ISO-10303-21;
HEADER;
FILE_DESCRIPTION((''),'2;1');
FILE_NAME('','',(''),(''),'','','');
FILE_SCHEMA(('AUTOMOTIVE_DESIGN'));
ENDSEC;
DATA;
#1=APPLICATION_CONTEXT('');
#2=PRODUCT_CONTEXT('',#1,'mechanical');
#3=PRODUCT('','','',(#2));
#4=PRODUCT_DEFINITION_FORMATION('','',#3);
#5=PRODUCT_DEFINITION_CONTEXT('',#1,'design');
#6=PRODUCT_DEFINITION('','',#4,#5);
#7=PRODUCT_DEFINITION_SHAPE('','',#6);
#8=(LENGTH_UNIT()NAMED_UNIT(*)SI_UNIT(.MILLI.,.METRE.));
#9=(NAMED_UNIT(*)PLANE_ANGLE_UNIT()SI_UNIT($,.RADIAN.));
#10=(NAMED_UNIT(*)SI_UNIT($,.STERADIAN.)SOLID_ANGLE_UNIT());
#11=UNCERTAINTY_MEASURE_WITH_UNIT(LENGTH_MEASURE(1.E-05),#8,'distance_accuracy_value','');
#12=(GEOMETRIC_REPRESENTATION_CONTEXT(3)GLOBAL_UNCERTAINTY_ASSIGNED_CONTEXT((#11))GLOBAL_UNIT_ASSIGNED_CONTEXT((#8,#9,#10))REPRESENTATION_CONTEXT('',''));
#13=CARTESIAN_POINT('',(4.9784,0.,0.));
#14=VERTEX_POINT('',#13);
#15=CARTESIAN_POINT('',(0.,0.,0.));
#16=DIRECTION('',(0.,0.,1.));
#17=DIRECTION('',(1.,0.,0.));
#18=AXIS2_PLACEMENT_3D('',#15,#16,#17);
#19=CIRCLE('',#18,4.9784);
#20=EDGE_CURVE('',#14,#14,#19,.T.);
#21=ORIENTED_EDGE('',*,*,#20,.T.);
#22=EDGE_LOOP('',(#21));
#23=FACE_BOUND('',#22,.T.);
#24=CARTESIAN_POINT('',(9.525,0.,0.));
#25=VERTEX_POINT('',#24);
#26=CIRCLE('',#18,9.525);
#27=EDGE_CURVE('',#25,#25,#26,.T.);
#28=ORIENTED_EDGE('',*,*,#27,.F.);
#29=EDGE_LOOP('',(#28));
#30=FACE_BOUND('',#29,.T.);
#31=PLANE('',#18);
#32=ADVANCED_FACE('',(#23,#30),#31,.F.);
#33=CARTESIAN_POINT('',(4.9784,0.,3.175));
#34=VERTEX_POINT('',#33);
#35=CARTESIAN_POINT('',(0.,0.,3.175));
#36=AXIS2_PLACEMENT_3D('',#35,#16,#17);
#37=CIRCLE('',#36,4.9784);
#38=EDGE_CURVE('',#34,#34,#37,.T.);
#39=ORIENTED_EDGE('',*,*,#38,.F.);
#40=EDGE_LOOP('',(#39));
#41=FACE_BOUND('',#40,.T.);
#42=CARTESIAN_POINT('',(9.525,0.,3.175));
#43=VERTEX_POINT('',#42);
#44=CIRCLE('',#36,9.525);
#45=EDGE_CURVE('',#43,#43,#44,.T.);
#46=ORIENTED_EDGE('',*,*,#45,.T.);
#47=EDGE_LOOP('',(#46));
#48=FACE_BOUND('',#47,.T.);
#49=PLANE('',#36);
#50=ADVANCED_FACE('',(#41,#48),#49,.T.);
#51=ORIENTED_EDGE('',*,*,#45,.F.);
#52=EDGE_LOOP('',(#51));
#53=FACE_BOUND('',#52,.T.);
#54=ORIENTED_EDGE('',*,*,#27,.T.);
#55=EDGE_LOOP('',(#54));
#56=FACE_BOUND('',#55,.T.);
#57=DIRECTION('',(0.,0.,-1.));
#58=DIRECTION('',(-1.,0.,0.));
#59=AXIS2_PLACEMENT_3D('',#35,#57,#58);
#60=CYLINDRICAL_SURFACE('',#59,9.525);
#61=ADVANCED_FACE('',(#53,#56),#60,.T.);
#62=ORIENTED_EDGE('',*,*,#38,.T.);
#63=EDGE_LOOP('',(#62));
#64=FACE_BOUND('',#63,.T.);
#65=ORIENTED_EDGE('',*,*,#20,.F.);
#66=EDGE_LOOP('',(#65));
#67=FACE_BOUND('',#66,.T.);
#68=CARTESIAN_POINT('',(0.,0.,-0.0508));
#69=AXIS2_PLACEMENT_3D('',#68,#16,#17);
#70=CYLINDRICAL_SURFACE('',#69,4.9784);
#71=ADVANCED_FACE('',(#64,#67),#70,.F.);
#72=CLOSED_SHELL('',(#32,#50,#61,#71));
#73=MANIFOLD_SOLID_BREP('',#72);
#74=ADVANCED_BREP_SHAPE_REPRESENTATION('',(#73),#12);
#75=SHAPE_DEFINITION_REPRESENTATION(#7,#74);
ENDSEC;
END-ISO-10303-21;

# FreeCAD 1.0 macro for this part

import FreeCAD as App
import Part
import Sketcher

V = App.Vector
Q = App.Units.Quantity

doc = App.newDocument("Part")
body = doc.addObject("PartDesign::Body", "Body")

# Sketch on XY plane
sketch1 = body.newObject("Sketcher::SketchObject", "Sketch")
sketch1.AttachmentSupport = (doc.getObject("XY_Plane"), [""])
sketch1.MapMode = "FlatFace"
sketch1.addGeometry(Part.Circle(V(0, 0, 0), V(0, 0, 1), 10), False)
sketch1.addConstraint([
    Sketcher.Constraint("Coincident", 0, 3, -1, 1),
    Sketcher.Constraint("Diameter", 0, Q("0.75 in")),
])
pad1 = body.newObject("PartDesign::Pad", "Pad")
pad1.Profile = sketch1
pad1.Length = Q("0.125 in")

# Sketch on XY plane
sketch2 = body.newObject("Sketcher::SketchObject", "Sketch001")
sketch2.AttachmentSupport = (doc.getObject("XY_Plane"), [""])
sketch2.MapMode = "FlatFace"
sketch2.AttachmentOffset = App.Placement(V(0, 0, 0.125 * 25.4), App.Rotation())
sketch2.addGeometry(Part.Circle(V(0, 0, 0), V(0, 0, 1), 4.8), False)
sketch2.addConstraint([
    Sketcher.Constraint("Coincident", 0, 3, -1, 1),
    Sketcher.Constraint("Diameter", 0, Q("0.375 in")),
])
pad2 = body.newObject("PartDesign::Pad", "Pad001")
pad2.Profile = sketch2
pad2.Length = Q("0.187 in")

# Sketch on XY plane
sketch3 = body.newObject("Sketcher::SketchObject", "Sketch002")
sketch3.AttachmentSupport = (doc.getObject("XY_Plane"), [""])
sketch3.MapMode = "FlatFace"
sketch3.AttachmentOffset = App.Placement(V(0, 0, 0.312 * 25.4), App.Rotation())
sketch3.addGeometry(Part.Circle(V(0, 0, 0), V(0, 0, 1), 5), False)
sketch3.addConstraint([
    Sketcher.Constraint("Coincident", 0, 3, -1, 1),
    Sketcher.Constraint("Diameter", 0, Q("0.392 in")),
])
pocket1 = body.newObject("PartDesign::Pocket", "Pocket")
pocket1.Profile = sketch3
pocket1.Length = Q("0.314 in")

doc.recompute()
